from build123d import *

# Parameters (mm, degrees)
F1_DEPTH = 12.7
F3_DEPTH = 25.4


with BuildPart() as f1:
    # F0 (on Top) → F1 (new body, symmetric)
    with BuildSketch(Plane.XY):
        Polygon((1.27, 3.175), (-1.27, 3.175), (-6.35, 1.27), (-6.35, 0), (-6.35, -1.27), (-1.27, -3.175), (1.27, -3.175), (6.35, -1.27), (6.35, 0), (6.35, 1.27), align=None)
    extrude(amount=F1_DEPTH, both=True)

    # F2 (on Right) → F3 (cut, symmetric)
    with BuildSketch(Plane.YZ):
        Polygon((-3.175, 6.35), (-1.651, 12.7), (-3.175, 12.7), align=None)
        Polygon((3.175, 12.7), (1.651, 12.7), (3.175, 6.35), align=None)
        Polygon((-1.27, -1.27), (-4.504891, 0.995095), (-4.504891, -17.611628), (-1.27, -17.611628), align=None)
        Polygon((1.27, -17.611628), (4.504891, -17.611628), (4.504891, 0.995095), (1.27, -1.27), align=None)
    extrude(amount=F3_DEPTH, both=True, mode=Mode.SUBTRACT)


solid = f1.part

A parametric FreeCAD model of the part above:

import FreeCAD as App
import Part
import Sketcher

V = App.Vector
Q = App.Units.Quantity


def add_polygon(sketch, points):
    """Adds a closed chain of lines whose ends are joined by coincident constraints."""
    first, n = sketch.GeometryCount, len(points)
    for a, b in zip(points, points[1:] + points[:1]):
        sketch.addGeometry(Part.LineSegment(App.Vector(*a, 0), App.Vector(*b, 0)), False)
    for i in range(n):
        sketch.addConstraint(Sketcher.Constraint("Coincident", first + i, 2, first + (i + 1) % n, 1))

doc = App.newDocument("Part")
body = doc.addObject("PartDesign::Body", "Body")

sketch1 = body.newObject("Sketcher::SketchObject", "Sketch")
sketch1.AttachmentSupport = (doc.getObject("XY_Plane"), [""])
sketch1.MapMode = "FlatFace"
add_polygon(sketch1, [(1.3, 3.2), (-1.3, 3.2), (-6.3, 1.3), (-6.3, -1.3), (-1.3, -3.2), (1.3, -3.2), (6.3, -1.3), (6.3, 1.3)])
sketch1.addConstraint(Sketcher.Constraint("Horizontal", 0))
sketch1.addConstraint(Sketcher.Constraint("Vertical", 2))
sketch1.addConstraint(Sketcher.Constraint("Horizontal", 4))
sketch1.addConstraint(Sketcher.Constraint("Vertical", 6))
sketch1.addConstraint(Sketcher.Constraint("Symmetric", 0, 2, 4, 2, -1, 1))
sketch1.addConstraint(Sketcher.Constraint("Symmetric", 1, 2, 5, 2, -1, 1))
sketch1.addConstraint(Sketcher.Constraint("Parallel", 3, 7))
sketch1.addConstraint(Sketcher.Constraint("Horizontal", 2, 2, 5, 2))
sketch1.addConstraint(Sketcher.Constraint("Horizontal", 1, 2, 6, 2))
sketch1.addConstraint(Sketcher.Constraint("Vertical", 0, 2, 3, 2))
sketch1.addConstraint(Sketcher.Constraint("Equal", 4, 2))
sketch1.addConstraint(Sketcher.Constraint("DistanceX", 0, 2, 0, 1, Q("0.1 in")))
sketch1.addConstraint(Sketcher.Constraint("DistanceX", 1, 2, 0, 2, Q("0.2 in")))
sketch1.addConstraint(Sketcher.Constraint("DistanceY", 3, 2, 0, 2, Q("0.25 in")))
pad1 = body.newObject("PartDesign::Pad", "Pad")
pad1.Profile = sketch1
pad1.Length = Q("1 in")
pad1.Midplane = True

sketch2 = body.newObject("Sketcher::SketchObject", "Sketch001")
sketch2.AttachmentSupport = (doc.getObject("YZ_Plane"), [""])
sketch2.MapMode = "FlatFace"
add_polygon(sketch2, [(-3.2, 6.3), (-1.7, 12.7), (-3.2, 12.7)])
add_polygon(sketch2, [(3.2, 12.7), (1.7, 12.7), (3.2, 6.3)])
add_polygon(sketch2, [(-1.3, -1.3), (-4.5, 1), (-4.5, -17.6), (-1.3, -17.6)])
add_polygon(sketch2, [(1.3, -17.6), (4.5, -17.6), (4.5, 1), (1.3, -1.3)])
sketch2.addConstraint(Sketcher.Constraint("Horizontal", 1))
sketch2.addConstraint(Sketcher.Constraint("Vertical", 2))
sketch2.addConstraint(Sketcher.Constraint("Horizontal", 3))
sketch2.addConstraint(Sketcher.Constraint("Vertical", 5))
sketch2.addConstraint(Sketcher.Constraint("Vertical", 7))
sketch2.addConstraint(Sketcher.Constraint("Horizontal", 8))
sketch2.addConstraint(Sketcher.Constraint("Vertical", 9))
sketch2.addConstraint(Sketcher.Constraint("Horizontal", 10))
sketch2.addConstraint(Sketcher.Constraint("Vertical", 11))
sketch2.addConstraint(Sketcher.Constraint("Vertical", 13))
sketch2.addConstraint(Sketcher.Constraint("Symmetric", 0, 2, 3, 2, -2))
sketch2.addConstraint(Sketcher.Constraint("Symmetric", 2, 2, 4, 2, -2))
sketch2.addConstraint(Sketcher.Constraint("Symmetric", 7, 2, 10, 2, -2))
sketch2.addConstraint(Sketcher.Constraint("Symmetric", 9, 2, 12, 2, -2))
sketch2.addConstraint(Sketcher.Constraint("Horizontal", 6, 2, 11, 2))
sketch2.addConstraint(Sketcher.Constraint("Angle", 6, Q("145.000001 deg")))
sketch2.addConstraint(Sketcher.Constraint("DistanceX", 1, 2, 1, 1, Q("0.06 in")))
sketch2.addConstraint(Sketcher.Constraint("DistanceY", 2, 2, 2, 1, Q("0.25 in")))
sketch2.addConstraint(Sketcher.Constraint("DistanceY", -1, 1, 0, 2, Q("0.5 in")))
sketch2.addConstraint(Sketcher.Constraint("DistanceY", 9, 2, 2, 2, Q("0.3 in")))
sketch2.addConstraint(Sketcher.Constraint("DistanceX", 9, 2, 12, 2, Q("0.1 in")))
sketch2.addConstraint(Sketcher.Constraint("DistanceX", 0, 2, 3, 2, Q("0.13 in")))
sketch2.addConstraint(Sketcher.Constraint("DistanceX", 8, 1, 8, 2, Q("3.234891 mm")))
sketch2.addConstraint(Sketcher.Constraint("DistanceY", 9, 1, 9, 2, Q("16.341628 mm")))
pocket1 = body.newObject("PartDesign::Pocket", "Pocket")
pocket1.Profile = sketch2
pocket1.Length = Q("2 in")
pocket1.Midplane = True

doc.recompute()
